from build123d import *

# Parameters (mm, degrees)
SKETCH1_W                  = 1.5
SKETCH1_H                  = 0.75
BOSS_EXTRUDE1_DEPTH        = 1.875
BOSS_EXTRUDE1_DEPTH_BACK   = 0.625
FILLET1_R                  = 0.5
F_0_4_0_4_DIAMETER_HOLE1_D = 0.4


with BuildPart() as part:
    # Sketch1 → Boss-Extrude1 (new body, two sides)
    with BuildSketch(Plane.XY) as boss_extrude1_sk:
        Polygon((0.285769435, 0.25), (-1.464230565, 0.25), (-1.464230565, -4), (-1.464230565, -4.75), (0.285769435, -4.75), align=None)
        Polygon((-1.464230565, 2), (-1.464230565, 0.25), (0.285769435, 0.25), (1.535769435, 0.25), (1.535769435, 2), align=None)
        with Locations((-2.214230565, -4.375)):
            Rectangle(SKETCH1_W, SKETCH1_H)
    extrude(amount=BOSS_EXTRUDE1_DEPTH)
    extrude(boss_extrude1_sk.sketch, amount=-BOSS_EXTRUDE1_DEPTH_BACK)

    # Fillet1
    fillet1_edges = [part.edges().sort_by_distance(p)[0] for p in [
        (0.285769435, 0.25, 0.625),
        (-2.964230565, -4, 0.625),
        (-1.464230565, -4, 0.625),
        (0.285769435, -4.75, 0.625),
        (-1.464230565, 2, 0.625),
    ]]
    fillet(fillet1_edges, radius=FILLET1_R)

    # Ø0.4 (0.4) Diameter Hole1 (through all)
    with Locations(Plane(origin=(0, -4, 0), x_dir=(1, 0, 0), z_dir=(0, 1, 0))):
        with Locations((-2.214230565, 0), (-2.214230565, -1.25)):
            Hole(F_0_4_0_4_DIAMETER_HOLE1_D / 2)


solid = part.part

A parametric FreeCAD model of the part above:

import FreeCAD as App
import Part
import Sketcher
from FreeCAD import Vector


def edges_at(feature, points):
    """Names of the edges that pass closest to the given points."""
    edges = feature.Shape.Edges
    near = lambda p: min(range(len(edges)), key=lambda i: edges[i].distToShape(Part.Vertex(*p))[0])
    return sorted({f"Edge{near(p) + 1}" for p in points})


def add_polygon(sketch, points):
    """Adds a closed chain of lines whose ends are joined by coincident constraints."""
    first, n = sketch.GeometryCount, len(points)
    for a, b in zip(points, points[1:] + points[:1]):
        sketch.addGeometry(Part.LineSegment(App.Vector(*a, 0), App.Vector(*b, 0)), False)
    for i in range(n):
        sketch.addConstraint(Sketcher.Constraint("Coincident", first + i, 2, first + (i + 1) % n, 1))

doc = App.newDocument("Part")
body = doc.addObject("PartDesign::Body", "Body")

# Sketch on XY plane
sketch1 = body.newObject("Sketcher::SketchObject", "Sketch")
sketch1.AttachmentSupport = (doc.getObject("XY_Plane"), [""])
sketch1.MapMode = "FlatFace"
add_polygon(sketch1, [(0.285769, -4.75), (0.285769, 0.25), (1.535769, 0.25), (1.535769, 2), (-1.464231, 2), (-1.464231, -4), (-2.964231, -4), (-2.964231, -4.75)])  # lines 0-7
sketch1.addConstraint([
    Sketcher.Constraint("Vertical", 0),
    Sketcher.Constraint("Horizontal", 1),
    Sketcher.Constraint("Vertical", 2),
    Sketcher.Constraint("Horizontal", 3),
    Sketcher.Constraint("Vertical", 4),
    Sketcher.Constraint("Horizontal", 5),
    Sketcher.Constraint("Vertical", 6),
    Sketcher.Constraint("Horizontal", 7),
    Sketcher.Constraint("DistanceX", 3, 2, 3, 1, 3.0),
    Sketcher.Constraint("DistanceY", 0, 1, 0, 2, 5.0),
    Sketcher.Constraint("DistanceY", 4, 2, 4, 1, 6.0),
    Sketcher.Constraint("DistanceX", 5, 2, 5, 1, 1.5),
    Sketcher.Constraint("DistanceY", -1, 1, 2, 2, 2.0),
    Sketcher.Constraint("DistanceX", 1, 1, 1, 2, 1.25),
    Sketcher.Constraint("DistanceY", 2, 1, 2, 2, 1.75),
    Sketcher.Constraint("DistanceX", -1, 1, 0, 2, 0.285769),
])
pad1 = body.newObject("PartDesign::Pad", "Pad")
pad1.Profile = sketch1
pad1.Type = "TwoLengths"
pad1.Length = 1.875
pad1.Length2 = 0.625
doc.recompute()

fillet = body.newObject("PartDesign::Fillet", "Fillet")
fillet.Base = (pad1, edges_at(pad1, [
    (0.286, 0.25, 0.625),
    (-2.964, -4, 0.625),
    (-1.464, -4, 0.625),
    (0.286, -4.75, 0.625),
    (-1.464, 2, 0.625),
]))
fillet.Radius = 0.5

# Sketch on XZ plane
sketch2 = body.newObject("Sketcher::SketchObject", "Sketch001")
sketch2.AttachmentSupport = (doc.getObject("XZ_Plane"), [""])
sketch2.MapMode = "FlatFace"
sketch2.AttachmentOffset = App.Placement(Vector(0, 0, 4), App.Rotation())
sketch2.addGeometry([
    Part.Circle(Vector(-2.214231, 0, 0), Vector(0, 0, 1), 0.2),
    Part.Circle(Vector(-2.214231, 1.25, 0), Vector(0, 0, 1), 0.2),
], False)
sketch2.addConstraint([
    Sketcher.Constraint("Equal", 0, 1),
    Sketcher.Constraint("PointOnObject", 0, 3, -1),
    Sketcher.Constraint("Vertical", 0, 3, 1, 3),
    Sketcher.Constraint("Diameter", 0, 0.4),
    Sketcher.Constraint("DistanceY", -1, 1, 1, 3, 1.25),
    Sketcher.Constraint("DistanceX", 0, 3, -1, 1, 2.214231),
])
doc.recompute()
hole = body.newObject("PartDesign::Hole", "Hole")
hole.Profile = sketch2
hole.ThreadType = "None"
hole.Diameter = 0.4
hole.DepthType = "ThroughAll"
hole.Reversed = True

doc.recompute()
